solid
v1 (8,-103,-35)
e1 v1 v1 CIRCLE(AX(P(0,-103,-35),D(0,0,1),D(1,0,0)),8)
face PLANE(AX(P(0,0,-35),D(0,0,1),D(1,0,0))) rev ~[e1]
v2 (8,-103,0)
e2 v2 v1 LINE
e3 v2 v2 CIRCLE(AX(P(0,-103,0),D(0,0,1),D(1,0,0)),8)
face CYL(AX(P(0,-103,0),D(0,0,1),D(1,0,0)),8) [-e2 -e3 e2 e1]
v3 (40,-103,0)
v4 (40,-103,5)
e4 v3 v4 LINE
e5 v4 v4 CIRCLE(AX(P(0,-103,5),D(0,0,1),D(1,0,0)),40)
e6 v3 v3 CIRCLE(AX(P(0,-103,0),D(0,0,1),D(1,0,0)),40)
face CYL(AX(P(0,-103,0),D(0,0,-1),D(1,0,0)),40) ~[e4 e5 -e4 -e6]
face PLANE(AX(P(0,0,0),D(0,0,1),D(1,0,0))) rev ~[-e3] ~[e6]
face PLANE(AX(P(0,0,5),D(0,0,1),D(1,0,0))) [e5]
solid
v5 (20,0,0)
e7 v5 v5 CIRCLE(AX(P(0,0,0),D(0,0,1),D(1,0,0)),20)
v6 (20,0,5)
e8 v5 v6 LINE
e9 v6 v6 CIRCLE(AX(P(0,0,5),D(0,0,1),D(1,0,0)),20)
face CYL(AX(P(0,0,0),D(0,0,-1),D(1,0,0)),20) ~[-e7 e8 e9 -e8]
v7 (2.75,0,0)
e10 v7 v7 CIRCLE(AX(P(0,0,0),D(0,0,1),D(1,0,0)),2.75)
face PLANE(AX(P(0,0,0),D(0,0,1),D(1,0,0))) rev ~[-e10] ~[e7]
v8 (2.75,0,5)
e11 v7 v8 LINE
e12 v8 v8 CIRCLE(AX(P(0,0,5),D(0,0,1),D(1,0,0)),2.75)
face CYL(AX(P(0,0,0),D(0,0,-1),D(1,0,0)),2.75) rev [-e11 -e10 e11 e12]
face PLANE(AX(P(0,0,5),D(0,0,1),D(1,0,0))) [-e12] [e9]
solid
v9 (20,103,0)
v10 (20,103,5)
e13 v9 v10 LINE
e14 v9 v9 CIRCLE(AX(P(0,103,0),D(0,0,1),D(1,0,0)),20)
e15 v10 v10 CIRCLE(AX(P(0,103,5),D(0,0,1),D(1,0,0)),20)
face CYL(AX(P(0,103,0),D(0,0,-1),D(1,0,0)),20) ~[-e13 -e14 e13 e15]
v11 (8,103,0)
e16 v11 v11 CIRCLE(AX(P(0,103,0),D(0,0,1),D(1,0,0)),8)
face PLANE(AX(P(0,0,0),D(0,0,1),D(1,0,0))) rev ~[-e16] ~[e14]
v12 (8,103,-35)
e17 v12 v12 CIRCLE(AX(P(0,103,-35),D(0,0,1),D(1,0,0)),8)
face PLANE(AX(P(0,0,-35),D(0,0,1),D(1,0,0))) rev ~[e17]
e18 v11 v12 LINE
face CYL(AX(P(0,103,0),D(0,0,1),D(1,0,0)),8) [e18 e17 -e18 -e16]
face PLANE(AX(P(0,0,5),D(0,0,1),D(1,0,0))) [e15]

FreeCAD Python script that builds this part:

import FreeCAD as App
import Part
import Sketcher

V = App.Vector
Q = App.Units.Quantity

doc = App.newDocument("Part")
body = doc.addObject("PartDesign::Body", "Body")
body.AllowCompound = True

# Sketch on XY plane
sketch1 = body.newObject("Sketcher::SketchObject", "Sketch")
sketch1.AttachmentSupport = (doc.getObject("XY_Plane"), [""])
sketch1.MapMode = "FlatFace"
sketch1.addGeometry([
    Part.Circle(V(0, 0, 0), V(0, 0, 1), 20),
    Part.Circle(V(0, 0, 0), V(0, 0, 1), 2.8),
    Part.Circle(V(0, -103, 0), V(0, 0, 1), 40),
    Part.Circle(V(0, 103, 0), V(0, 0, 1), 20),
], False)
sketch1.addConstraint([
    Sketcher.Constraint("Coincident", 0, 3, -1, 1),
    Sketcher.Constraint("Coincident", 1, 3, -1, 1),
    Sketcher.Constraint("Equal", 0, 3),
    Sketcher.Constraint("Symmetric", 2, 3, 3, 3, -1, 1),
    Sketcher.Constraint("PointOnObject", 2, 3, -2),
    Sketcher.Constraint("Diameter", 0, Q("40 mm")),
    Sketcher.Constraint("Diameter", 2, Q("80 mm")),
    Sketcher.Constraint("Diameter", 1, Q("5.5 mm")),
    Sketcher.Constraint("DistanceY", 2, 3, -1, 1, Q("103 mm")),
])
pad1 = body.newObject("PartDesign::Pad", "Pad")
pad1.Profile = sketch1
pad1.Length = 5

# Sketch on XY plane
sketch2 = body.newObject("Sketcher::SketchObject", "Sketch001")
sketch2.AttachmentSupport = (doc.getObject("XY_Plane"), [""])
sketch2.MapMode = "FlatFace"
sketch2.addGeometry([
    Part.Circle(V(0, -103, 0), V(0, 0, 1), 8),
    Part.Circle(V(0, 103, 0), V(0, 0, 1), 8),
], False)
sketch2.addConstraint([
    Sketcher.Constraint("Equal", 0, 1),
    Sketcher.Constraint("Symmetric", 0, 3, 1, 3, -1, 1),
    Sketcher.Constraint("PointOnObject", 0, 3, -2),
    Sketcher.Constraint("Diameter", 0, Q("16 mm")),
    Sketcher.Constraint("DistanceY", 0, 3, -1, 1, Q("103 mm")),
])
pad2 = body.newObject("PartDesign::Pad", "Pad001")
pad2.Profile = sketch2
pad2.Length = 35
pad2.Reversed = True

doc.recompute()
